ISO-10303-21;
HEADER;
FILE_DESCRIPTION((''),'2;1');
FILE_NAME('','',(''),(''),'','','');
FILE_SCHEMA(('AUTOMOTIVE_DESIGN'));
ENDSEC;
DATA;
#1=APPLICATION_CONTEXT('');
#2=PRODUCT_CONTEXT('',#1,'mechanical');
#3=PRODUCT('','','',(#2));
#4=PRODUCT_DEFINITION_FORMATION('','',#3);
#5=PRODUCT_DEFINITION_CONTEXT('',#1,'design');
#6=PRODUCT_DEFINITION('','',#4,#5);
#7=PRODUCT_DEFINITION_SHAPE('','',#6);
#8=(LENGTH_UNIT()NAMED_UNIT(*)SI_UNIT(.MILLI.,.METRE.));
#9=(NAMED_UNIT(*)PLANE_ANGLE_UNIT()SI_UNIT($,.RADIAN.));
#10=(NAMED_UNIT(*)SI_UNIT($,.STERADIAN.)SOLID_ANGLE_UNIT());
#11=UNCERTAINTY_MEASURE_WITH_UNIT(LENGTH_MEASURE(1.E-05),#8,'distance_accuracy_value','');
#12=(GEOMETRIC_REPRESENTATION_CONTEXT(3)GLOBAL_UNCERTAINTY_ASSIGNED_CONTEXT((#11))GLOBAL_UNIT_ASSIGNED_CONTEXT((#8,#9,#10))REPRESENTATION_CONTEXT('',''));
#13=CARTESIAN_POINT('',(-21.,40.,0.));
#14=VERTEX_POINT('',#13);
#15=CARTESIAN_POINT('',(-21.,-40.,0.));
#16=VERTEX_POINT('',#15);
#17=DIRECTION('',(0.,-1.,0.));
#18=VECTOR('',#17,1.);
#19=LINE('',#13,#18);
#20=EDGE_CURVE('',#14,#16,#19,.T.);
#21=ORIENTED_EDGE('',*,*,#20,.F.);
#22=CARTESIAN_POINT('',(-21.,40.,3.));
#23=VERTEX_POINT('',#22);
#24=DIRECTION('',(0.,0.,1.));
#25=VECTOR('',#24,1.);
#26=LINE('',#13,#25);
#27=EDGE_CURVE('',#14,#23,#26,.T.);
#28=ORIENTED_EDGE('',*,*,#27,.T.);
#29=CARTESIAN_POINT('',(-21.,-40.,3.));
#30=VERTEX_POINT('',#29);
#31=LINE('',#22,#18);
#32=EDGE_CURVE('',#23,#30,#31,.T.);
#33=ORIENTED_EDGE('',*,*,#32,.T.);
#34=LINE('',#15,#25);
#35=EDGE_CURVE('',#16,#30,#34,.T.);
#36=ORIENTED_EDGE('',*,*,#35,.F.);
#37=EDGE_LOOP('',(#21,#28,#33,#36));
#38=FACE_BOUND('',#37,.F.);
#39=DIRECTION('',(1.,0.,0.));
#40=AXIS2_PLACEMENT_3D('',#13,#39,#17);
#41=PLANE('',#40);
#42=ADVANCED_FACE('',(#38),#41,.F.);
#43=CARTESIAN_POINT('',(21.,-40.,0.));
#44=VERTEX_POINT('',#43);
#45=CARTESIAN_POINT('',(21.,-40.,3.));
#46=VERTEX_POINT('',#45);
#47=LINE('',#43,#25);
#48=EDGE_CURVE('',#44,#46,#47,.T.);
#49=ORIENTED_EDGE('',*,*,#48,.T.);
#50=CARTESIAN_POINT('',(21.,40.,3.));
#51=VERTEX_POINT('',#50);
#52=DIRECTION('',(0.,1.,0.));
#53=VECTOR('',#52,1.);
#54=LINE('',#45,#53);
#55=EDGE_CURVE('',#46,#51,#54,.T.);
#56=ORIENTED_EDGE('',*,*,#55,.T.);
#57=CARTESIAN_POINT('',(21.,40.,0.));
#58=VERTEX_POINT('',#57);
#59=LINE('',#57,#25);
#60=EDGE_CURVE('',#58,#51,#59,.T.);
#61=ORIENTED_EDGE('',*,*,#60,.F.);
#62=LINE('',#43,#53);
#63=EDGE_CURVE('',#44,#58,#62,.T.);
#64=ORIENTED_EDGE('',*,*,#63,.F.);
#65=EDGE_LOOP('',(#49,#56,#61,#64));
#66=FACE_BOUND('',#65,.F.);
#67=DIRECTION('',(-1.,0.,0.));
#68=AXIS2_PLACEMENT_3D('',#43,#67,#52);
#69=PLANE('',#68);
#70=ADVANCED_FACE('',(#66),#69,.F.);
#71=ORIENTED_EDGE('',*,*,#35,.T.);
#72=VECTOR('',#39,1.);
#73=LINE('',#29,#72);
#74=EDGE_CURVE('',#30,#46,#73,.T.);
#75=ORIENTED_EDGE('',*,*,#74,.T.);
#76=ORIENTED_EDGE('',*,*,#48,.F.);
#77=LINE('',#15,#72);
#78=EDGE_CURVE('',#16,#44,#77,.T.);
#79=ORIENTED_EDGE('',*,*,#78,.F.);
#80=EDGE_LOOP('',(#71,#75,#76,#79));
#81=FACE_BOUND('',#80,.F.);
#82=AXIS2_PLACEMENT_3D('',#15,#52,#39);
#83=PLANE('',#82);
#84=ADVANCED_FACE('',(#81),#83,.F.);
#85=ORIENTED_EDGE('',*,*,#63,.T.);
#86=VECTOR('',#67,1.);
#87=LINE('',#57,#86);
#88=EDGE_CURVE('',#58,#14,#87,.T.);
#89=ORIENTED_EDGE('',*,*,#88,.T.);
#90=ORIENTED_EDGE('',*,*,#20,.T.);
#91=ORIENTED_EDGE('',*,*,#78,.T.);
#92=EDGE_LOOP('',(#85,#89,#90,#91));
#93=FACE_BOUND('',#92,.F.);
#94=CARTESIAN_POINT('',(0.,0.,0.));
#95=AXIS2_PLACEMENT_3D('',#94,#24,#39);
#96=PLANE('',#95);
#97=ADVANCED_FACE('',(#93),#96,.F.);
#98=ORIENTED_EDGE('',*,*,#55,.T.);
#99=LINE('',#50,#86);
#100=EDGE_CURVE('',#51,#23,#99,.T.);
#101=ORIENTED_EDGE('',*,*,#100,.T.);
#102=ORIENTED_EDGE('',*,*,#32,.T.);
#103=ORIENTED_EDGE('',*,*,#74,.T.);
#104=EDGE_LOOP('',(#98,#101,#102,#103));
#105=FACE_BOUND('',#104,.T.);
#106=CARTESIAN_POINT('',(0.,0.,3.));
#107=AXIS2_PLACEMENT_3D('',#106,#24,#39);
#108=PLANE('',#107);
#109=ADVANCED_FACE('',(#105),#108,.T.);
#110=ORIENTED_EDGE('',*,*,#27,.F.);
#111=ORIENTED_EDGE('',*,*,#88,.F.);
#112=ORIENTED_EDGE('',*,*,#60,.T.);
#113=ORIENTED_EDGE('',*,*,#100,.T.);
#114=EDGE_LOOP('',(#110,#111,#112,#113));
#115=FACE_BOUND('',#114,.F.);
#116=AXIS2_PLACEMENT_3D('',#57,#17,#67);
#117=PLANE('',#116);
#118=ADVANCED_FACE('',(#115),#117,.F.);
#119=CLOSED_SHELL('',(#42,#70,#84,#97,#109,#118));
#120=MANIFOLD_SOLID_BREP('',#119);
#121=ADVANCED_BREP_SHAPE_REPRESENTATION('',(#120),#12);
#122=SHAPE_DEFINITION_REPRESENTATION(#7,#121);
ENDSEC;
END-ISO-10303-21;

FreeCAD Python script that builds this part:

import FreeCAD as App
import Part
import Sketcher
from FreeCAD import Vector
Q = App.Units.Quantity

doc = App.newDocument("Part")
body = doc.addObject("PartDesign::Body", "Body")

# Sketch on XY plane
sketch1 = doc.addObject("Sketcher::SketchObject", "Sketch")
body.addObject(sketch1)
sketch1.AttachmentSupport = (doc.XY_Plane, [""])
sketch1.MapMode = "FlatFace"
sketch1.addGeometry([
    Part.LineSegment(Vector(-21, 40, 0), Vector(-21, -40, 0)),
    Part.LineSegment(Vector(-21, -40, 0), Vector(21, -40, 0)),
    Part.LineSegment(Vector(21, -40, 0), Vector(21, 40, 0)),
    Part.LineSegment(Vector(21, 40, 0), Vector(-21, 40, 0)),
], False)
sketch1.addConstraint([
    Sketcher.Constraint("Coincident", 0, 2, 1, 1),
    Sketcher.Constraint("Coincident", 1, 2, 2, 1),
    Sketcher.Constraint("Coincident", 2, 2, 3, 1),
    Sketcher.Constraint("Coincident", 3, 2, 0, 1),
    Sketcher.Constraint("Vertical", 0),
    Sketcher.Constraint("Horizontal", 1),
    Sketcher.Constraint("Vertical", 2),
    Sketcher.Constraint("Horizontal", 3),
    Sketcher.Constraint("Symmetric", 0, 2, 2, 2, -1, 1),
    Sketcher.Constraint("DistanceX", 1, 1, 1, 2, Q("42 mm")),
    Sketcher.Constraint("DistanceY", 0, 2, 0, 1, Q("80 mm")),
])
pad1 = doc.addObject("PartDesign::Pad", "Pad")
body.addObject(pad1)
pad1.Profile = sketch1
pad1.Length = 3

doc.recompute()
